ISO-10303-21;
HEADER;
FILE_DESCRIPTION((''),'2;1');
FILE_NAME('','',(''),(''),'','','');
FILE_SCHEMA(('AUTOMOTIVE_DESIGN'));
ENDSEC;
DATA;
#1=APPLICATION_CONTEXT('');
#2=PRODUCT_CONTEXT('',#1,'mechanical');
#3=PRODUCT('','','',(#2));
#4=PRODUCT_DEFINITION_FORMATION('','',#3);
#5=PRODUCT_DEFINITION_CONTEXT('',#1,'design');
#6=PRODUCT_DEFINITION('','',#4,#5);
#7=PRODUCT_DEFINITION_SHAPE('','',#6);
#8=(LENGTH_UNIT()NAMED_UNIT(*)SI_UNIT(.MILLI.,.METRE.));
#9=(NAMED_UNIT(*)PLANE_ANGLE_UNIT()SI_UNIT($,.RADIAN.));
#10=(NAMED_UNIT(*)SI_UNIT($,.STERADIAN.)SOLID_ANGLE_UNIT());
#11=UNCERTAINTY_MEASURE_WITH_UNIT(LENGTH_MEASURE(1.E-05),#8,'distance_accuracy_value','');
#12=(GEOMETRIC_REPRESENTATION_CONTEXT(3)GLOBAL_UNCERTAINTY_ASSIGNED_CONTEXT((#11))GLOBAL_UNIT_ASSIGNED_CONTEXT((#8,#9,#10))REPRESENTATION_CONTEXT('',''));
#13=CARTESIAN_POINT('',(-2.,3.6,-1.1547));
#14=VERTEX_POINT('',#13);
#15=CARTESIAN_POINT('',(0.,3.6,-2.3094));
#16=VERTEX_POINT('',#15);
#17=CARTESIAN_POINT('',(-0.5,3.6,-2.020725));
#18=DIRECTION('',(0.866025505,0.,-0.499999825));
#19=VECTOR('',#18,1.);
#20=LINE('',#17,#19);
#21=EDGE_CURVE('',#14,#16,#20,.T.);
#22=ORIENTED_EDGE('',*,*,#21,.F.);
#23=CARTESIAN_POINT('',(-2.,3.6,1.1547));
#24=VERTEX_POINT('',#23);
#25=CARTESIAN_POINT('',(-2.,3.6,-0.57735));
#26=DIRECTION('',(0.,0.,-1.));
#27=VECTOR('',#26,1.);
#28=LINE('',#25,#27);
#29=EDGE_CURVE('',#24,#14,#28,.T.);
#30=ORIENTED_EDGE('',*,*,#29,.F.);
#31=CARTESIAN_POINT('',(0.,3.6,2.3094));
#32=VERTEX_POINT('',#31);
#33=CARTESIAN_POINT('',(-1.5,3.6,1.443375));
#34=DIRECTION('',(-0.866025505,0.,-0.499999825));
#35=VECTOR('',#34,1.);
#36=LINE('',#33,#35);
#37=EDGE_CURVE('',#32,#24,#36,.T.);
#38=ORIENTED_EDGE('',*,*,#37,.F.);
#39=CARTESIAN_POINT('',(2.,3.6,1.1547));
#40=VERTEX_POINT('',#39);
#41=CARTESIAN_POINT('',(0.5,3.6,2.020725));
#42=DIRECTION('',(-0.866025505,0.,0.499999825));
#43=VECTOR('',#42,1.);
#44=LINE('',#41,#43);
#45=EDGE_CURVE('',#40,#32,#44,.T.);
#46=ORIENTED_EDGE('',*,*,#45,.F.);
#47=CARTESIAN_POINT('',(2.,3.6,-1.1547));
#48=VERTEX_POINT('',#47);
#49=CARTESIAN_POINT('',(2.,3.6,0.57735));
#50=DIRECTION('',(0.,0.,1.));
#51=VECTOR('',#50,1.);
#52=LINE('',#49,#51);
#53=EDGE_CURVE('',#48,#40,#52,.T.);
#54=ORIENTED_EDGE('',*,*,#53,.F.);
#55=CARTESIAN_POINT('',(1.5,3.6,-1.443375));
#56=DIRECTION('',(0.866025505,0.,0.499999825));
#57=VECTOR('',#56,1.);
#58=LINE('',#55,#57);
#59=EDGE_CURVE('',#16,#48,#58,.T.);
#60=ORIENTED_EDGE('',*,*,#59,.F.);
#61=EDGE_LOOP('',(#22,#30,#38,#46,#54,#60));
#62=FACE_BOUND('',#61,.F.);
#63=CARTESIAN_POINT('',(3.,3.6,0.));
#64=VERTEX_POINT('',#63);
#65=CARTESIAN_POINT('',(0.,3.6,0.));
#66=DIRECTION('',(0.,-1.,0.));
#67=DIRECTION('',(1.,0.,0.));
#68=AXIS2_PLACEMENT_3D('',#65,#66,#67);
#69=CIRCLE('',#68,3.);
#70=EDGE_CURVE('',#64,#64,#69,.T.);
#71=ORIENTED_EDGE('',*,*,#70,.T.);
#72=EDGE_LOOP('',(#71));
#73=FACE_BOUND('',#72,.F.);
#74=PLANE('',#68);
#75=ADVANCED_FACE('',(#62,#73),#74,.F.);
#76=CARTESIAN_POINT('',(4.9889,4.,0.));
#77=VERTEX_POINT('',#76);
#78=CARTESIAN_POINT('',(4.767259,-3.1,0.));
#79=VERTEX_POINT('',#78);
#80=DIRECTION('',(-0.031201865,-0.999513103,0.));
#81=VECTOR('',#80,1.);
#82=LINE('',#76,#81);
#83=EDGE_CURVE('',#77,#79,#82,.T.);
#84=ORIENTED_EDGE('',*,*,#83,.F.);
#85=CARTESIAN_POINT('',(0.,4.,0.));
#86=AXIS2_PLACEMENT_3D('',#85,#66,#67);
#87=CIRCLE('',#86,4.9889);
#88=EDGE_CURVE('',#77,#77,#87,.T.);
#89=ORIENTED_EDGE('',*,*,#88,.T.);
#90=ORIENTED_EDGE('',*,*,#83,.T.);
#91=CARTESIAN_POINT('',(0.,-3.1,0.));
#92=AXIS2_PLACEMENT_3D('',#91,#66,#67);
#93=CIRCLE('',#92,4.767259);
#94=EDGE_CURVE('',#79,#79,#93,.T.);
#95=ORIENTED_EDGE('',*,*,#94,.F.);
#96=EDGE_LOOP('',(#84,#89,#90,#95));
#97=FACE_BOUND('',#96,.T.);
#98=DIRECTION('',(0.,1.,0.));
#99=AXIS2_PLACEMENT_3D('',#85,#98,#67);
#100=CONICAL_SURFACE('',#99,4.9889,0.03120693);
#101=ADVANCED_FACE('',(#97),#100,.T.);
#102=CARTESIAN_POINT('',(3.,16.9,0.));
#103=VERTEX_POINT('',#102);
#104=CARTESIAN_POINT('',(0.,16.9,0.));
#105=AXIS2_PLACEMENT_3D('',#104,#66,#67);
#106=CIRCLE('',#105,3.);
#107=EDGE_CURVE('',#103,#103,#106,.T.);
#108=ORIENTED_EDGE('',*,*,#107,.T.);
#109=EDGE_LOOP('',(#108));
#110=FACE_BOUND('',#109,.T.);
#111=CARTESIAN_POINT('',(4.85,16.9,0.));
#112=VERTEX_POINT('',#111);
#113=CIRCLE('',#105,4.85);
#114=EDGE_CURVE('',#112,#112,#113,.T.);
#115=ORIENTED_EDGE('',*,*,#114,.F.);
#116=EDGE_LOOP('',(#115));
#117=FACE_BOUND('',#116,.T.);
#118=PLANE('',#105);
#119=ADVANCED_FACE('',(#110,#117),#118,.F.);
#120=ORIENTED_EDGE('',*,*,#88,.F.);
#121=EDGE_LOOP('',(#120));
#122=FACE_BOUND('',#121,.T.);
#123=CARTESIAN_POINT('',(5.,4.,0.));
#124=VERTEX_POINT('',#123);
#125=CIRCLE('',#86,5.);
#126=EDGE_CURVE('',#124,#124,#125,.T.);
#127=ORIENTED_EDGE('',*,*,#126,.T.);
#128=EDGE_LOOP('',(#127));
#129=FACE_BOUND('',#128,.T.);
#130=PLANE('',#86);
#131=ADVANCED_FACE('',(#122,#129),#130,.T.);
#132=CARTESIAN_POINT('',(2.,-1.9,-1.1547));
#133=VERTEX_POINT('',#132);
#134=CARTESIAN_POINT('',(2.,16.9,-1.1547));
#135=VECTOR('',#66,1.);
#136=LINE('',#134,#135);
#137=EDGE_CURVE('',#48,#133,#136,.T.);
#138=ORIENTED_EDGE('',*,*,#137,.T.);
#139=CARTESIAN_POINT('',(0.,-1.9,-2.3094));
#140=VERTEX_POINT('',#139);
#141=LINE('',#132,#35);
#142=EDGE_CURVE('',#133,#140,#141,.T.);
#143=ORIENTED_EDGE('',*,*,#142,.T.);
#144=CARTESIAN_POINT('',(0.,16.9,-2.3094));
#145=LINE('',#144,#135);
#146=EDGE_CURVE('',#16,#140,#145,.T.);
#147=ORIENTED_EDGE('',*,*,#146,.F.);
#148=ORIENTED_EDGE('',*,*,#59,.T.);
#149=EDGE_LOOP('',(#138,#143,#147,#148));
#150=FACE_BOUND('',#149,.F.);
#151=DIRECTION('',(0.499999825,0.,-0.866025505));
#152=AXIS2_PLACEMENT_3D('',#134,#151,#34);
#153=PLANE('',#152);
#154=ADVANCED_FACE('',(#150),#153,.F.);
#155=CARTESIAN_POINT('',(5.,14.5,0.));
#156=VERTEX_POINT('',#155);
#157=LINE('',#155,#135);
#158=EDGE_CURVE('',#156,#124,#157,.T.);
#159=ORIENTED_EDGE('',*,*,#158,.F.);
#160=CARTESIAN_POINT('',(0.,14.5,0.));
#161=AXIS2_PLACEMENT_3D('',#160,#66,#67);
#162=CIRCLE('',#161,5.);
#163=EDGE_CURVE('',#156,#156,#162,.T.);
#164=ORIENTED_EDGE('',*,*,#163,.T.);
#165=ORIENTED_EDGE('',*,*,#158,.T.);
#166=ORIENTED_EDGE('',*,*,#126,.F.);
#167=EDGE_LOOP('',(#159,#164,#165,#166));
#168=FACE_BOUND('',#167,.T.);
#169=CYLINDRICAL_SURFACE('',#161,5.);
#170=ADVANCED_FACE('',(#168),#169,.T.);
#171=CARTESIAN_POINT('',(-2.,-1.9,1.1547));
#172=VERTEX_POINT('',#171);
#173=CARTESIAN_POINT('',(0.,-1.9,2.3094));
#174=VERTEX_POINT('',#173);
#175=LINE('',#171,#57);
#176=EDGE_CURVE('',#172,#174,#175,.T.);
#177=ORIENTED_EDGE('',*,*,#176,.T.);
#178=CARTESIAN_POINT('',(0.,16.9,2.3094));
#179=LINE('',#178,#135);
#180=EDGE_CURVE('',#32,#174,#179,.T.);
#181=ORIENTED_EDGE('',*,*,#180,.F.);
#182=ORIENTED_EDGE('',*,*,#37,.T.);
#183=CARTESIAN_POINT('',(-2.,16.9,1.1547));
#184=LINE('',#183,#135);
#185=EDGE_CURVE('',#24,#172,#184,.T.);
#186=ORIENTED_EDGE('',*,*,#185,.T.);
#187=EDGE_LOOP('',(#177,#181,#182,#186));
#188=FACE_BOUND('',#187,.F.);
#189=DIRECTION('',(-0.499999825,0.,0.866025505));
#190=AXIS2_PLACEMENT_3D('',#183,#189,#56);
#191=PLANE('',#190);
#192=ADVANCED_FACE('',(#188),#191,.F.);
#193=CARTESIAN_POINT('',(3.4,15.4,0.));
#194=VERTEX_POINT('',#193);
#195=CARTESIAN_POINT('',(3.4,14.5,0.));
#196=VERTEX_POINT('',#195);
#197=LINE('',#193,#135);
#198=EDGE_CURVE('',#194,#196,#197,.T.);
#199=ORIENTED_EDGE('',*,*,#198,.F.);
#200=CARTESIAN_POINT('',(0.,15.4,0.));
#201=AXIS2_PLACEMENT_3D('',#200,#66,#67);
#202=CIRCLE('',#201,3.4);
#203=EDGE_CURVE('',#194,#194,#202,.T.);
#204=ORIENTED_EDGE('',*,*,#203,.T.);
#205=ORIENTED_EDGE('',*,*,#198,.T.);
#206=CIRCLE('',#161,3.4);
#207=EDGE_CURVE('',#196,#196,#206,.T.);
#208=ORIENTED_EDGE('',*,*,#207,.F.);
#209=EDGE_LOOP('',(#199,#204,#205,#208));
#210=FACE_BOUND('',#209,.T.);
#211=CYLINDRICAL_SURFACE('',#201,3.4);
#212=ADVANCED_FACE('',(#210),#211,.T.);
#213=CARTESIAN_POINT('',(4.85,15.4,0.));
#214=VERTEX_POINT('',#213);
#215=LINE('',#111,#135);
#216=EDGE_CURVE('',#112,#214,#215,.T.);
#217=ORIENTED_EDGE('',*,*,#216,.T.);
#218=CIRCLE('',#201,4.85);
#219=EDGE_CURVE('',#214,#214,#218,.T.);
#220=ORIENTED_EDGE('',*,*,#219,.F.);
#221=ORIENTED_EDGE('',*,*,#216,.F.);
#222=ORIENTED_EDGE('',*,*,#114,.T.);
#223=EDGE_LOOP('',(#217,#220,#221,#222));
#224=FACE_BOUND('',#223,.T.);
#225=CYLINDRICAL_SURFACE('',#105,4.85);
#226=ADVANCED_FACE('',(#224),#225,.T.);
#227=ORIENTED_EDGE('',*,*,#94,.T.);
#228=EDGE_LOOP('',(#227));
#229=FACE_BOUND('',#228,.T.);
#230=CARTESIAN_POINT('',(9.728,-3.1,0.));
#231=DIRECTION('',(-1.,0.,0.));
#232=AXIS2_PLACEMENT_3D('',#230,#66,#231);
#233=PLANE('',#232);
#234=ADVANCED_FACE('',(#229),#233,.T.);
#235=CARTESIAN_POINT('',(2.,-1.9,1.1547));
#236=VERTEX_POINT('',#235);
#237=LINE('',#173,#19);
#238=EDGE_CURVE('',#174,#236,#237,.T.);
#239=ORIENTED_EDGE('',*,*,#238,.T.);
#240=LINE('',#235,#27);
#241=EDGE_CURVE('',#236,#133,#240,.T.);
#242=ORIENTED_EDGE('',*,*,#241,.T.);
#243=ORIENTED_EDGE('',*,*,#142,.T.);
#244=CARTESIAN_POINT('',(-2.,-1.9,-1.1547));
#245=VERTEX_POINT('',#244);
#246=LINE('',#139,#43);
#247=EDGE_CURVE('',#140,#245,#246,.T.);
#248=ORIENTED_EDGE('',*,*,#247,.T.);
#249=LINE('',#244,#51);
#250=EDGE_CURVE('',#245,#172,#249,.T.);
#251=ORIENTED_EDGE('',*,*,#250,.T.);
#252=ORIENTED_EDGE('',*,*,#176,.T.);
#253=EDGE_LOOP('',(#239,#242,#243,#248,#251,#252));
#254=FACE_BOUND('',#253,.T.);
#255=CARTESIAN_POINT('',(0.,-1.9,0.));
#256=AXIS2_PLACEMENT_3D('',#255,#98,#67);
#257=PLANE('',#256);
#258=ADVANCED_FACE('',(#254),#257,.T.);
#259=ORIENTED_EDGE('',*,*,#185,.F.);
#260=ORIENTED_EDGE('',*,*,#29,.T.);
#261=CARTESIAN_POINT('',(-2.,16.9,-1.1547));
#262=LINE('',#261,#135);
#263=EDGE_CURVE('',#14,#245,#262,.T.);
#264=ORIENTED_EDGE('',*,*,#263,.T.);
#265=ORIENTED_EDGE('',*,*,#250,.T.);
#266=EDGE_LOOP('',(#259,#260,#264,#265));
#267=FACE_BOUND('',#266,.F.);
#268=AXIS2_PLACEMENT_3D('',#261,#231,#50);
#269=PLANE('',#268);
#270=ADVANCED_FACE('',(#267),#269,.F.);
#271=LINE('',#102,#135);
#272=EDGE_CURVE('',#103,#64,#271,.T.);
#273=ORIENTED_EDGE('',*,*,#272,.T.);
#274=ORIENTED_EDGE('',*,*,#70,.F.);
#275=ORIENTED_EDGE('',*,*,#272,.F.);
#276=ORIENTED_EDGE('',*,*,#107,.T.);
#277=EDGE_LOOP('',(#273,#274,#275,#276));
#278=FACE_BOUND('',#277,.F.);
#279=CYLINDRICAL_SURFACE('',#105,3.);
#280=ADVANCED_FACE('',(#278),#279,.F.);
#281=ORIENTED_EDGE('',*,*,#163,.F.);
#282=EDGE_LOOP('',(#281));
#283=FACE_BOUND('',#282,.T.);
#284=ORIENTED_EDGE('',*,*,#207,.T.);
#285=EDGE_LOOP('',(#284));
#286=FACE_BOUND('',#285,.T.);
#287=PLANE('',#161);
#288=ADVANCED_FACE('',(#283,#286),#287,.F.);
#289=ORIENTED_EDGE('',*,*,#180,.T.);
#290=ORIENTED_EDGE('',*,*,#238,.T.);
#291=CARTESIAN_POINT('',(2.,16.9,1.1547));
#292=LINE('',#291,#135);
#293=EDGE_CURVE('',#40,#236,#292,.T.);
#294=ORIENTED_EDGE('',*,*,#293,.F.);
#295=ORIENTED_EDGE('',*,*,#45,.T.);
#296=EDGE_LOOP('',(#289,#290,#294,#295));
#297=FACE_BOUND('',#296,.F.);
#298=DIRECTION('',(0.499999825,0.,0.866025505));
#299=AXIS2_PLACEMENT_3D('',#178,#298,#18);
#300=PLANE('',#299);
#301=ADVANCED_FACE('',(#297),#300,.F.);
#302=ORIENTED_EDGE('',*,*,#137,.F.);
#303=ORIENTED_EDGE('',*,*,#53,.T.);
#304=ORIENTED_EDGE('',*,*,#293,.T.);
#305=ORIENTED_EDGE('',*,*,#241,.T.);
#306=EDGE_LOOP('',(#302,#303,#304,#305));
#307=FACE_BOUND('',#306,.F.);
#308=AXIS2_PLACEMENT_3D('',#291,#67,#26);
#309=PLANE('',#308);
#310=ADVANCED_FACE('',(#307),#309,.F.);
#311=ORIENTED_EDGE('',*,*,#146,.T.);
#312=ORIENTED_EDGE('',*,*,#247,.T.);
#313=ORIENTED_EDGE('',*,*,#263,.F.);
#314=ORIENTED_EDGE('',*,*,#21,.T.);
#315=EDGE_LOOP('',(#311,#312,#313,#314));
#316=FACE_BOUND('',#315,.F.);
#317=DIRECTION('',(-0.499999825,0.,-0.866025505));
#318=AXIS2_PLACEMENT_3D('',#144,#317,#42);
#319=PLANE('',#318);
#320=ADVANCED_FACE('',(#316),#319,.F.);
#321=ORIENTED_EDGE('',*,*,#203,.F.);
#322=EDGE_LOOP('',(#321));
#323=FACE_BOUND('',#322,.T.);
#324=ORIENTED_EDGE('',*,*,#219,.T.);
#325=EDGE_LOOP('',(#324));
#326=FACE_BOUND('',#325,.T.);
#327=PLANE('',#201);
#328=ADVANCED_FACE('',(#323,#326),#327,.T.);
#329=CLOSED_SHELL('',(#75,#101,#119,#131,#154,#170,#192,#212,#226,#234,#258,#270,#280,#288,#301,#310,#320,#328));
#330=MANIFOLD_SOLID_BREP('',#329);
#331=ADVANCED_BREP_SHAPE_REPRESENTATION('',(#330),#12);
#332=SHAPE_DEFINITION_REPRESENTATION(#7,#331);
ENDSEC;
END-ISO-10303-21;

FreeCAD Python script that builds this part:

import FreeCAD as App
import Part
import Sketcher
from FreeCAD import Vector
Q = App.Units.Quantity

doc = App.newDocument("Part")
body = doc.addObject("PartDesign::Body", "Body")

sketch1 = body.newObject("Sketcher::SketchObject", "Sketch")
sketch1.AttachmentSupport = (doc.getObject("XY_Plane"), [""])
sketch1.MapMode = "FlatFace"
sketch1.addGeometry([
    Part.LineSegment(Vector(0, 16.9, 0), Vector(0, -3.97, 0)),
    Part.LineSegment(Vector(0, -3.97, 0), Vector(4.74, -3.97, 0)),
    Part.LineSegment(Vector(4.74, -3.97, 0), Vector(4.989, 4, 0)),
    Part.LineSegment(Vector(4.989, 4, 0), Vector(5, 4, 0)),
    Part.LineSegment(Vector(5, 4, 0), Vector(5, 14.5, 0)),
    Part.LineSegment(Vector(5, 14.5, 0), Vector(3.4, 14.5, 0)),
    Part.LineSegment(Vector(3.4, 14.5, 0), Vector(3.4, 15.4, 0)),
    Part.LineSegment(Vector(3.4, 15.4, 0), Vector(4.85, 15.4, 0)),
    Part.LineSegment(Vector(4.85, 15.4, 0), Vector(4.85, 16.9, 0)),
    Part.LineSegment(Vector(4.85, 16.9, 0), Vector(0, 16.9, 0)),
], False)
sketch1.addConstraint([
    Sketcher.Constraint("Coincident", 0, 2, 1, 1),
    Sketcher.Constraint("Coincident", 1, 2, 2, 1),
    Sketcher.Constraint("Coincident", 2, 2, 3, 1),
    Sketcher.Constraint("Coincident", 3, 2, 4, 1),
    Sketcher.Constraint("Coincident", 4, 2, 5, 1),
    Sketcher.Constraint("Coincident", 5, 2, 6, 1),
    Sketcher.Constraint("Coincident", 6, 2, 7, 1),
    Sketcher.Constraint("Coincident", 7, 2, 8, 1),
    Sketcher.Constraint("Coincident", 8, 2, 9, 1),
    Sketcher.Constraint("Coincident", 9, 2, 0, 1),
    Sketcher.Constraint("Vertical", 0),
    Sketcher.Constraint("Horizontal", 1),
    Sketcher.Constraint("Horizontal", 3),
    Sketcher.Constraint("Vertical", 4),
    Sketcher.Constraint("Horizontal", 5),
    Sketcher.Constraint("Vertical", 6),
    Sketcher.Constraint("Horizontal", 7),
    Sketcher.Constraint("Vertical", 8),
    Sketcher.Constraint("Horizontal", 9),
    Sketcher.Constraint("PointOnObject", 0, 2, -2),
    Sketcher.Constraint("DistanceX", 5, 2, 5, 1, 1.6),
    Sketcher.Constraint("DistanceY", 4, 1, 4, 2, 10.5),
    Sketcher.Constraint("DistanceY", 6, 1, 6, 2, 0.9),
    Sketcher.Constraint("DistanceY", 8, 1, 8, 2, 1.5),
    Sketcher.Constraint("DistanceY", -1, 1, 2, 2, 4.0),
    Sketcher.Constraint("DistanceX", -1, 1, 3, 2, 5.0),
    Sketcher.Constraint("DistanceX", 1, 1, 1, 2, 4.74),
    Sketcher.Constraint("DistanceX", 7, 1, 7, 2, 1.45),
    Sketcher.Constraint("DistanceY", 0, 2, 0, 1, 20.87),
    Sketcher.Constraint("DistanceX", 3, 1, 3, 2, 0.011),
])
revolution = body.newObject("PartDesign::Revolution", "Revolution")
revolution.Profile = sketch1
revolution.ReferenceAxis = (sketch1, ["V_Axis"])
revolution.Angle = 360

sketch2 = body.newObject("Sketcher::SketchObject", "Sketch001")
sketch2.AttachmentSupport = (doc.getObject("XY_Plane"), [""])
sketch2.MapMode = "FlatFace"
sketch2.addGeometry([
    Part.LineSegment(Vector(9.7, -3.1, 0), Vector(-9.7, -3.1, 0)),
    Part.LineSegment(Vector(-9.7, -3.1, 0), Vector(-9.7, -4, 0)),
    Part.LineSegment(Vector(-9.7, -4, 0), Vector(9.7, -4, 0)),
    Part.LineSegment(Vector(9.7, -4, 0), Vector(9.7, -3.1, 0)),
], False)
sketch2.addConstraint([
    Sketcher.Constraint("Coincident", 0, 2, 1, 1),
    Sketcher.Constraint("Coincident", 1, 2, 2, 1),
    Sketcher.Constraint("Coincident", 2, 2, 3, 1),
    Sketcher.Constraint("Coincident", 3, 2, 0, 1),
    Sketcher.Constraint("Horizontal", 0),
    Sketcher.Constraint("Vertical", 1),
    Sketcher.Constraint("Horizontal", 2),
    Sketcher.Constraint("Vertical", 3),
    Sketcher.Constraint("DistanceY", 1, 2, 1, 1, 0.87),
    Sketcher.Constraint("DistanceY", 0, 2, -1, 1, 3.1),
    Sketcher.Constraint("DistanceX", 0, 2, 0, 1, 19.456),
    Sketcher.Constraint("DistanceX", 0, 2, -1, 1, 9.728),
])
pocket1 = body.newObject("PartDesign::Pocket", "Pocket")
pocket1.Profile = sketch2
pocket1.Length = 19.456
pocket1.Midplane = True

sketch3 = body.newObject("Sketcher::SketchObject", "Sketch002")
sketch3.AttachmentSupport = (doc.getObject("XY_Plane"), [""])
sketch3.MapMode = "FlatFace"
sketch3.addGeometry([
    Part.LineSegment(Vector(0, 16.9, 0), Vector(0, 3.6, 0)),
    Part.LineSegment(Vector(0, 3.6, 0), Vector(3, 3.6, 0)),
    Part.LineSegment(Vector(3, 3.6, 0), Vector(3, 16.9, 0)),
    Part.LineSegment(Vector(3, 16.9, 0), Vector(0, 16.9, 0)),
], False)
sketch3.addConstraint([
    Sketcher.Constraint("Coincident", 0, 2, 1, 1),
    Sketcher.Constraint("Coincident", 1, 2, 2, 1),
    Sketcher.Constraint("Coincident", 2, 2, 3, 1),
    Sketcher.Constraint("Coincident", 3, 2, 0, 1),
    Sketcher.Constraint("Vertical", 0),
    Sketcher.Constraint("Horizontal", 1),
    Sketcher.Constraint("Vertical", 2),
    Sketcher.Constraint("Horizontal", 3),
    Sketcher.Constraint("PointOnObject", 0, 2, -2),
    Sketcher.Constraint("DistanceX", 1, 1, 1, 2, 3.0),
    Sketcher.Constraint("DistanceY", 0, 2, 0, 1, 13.3),
    Sketcher.Constraint("DistanceY", -1, 1, 0, 2, 3.6),
])
groove = body.newObject("PartDesign::Groove", "Groove")
groove.Profile = sketch3
groove.ReferenceAxis = (sketch3, ["V_Axis"])
groove.Angle = 360

sketch4 = body.newObject("Sketcher::SketchObject", "Sketch003")
sketch4.AttachmentSupport = (doc.getObject("XZ_Plane"), [""])
sketch4.MapMode = "FlatFace"
sketch4.AttachmentOffset = App.Placement(Vector(0, 0, -16.9), App.Rotation())
sketch4.addGeometry([
    Part.LineSegment(Vector(-2, -1.2, 0), Vector(-2, 1.2, 0)),
    Part.LineSegment(Vector(-2, 1.2, 0), Vector(0, 2.3, 0)),
    Part.LineSegment(Vector(0, 2.3, 0), Vector(2, 1.2, 0)),
    Part.LineSegment(Vector(2, 1.2, 0), Vector(2, -1.2, 0)),
    Part.LineSegment(Vector(2, -1.2, 0), Vector(0, -2.3, 0)),
    Part.LineSegment(Vector(0, -2.3, 0), Vector(-2, -1.2, 0)),
], False)
sketch4.addConstraint([
    Sketcher.Constraint("Coincident", 0, 2, 1, 1),
    Sketcher.Constraint("Coincident", 1, 2, 2, 1),
    Sketcher.Constraint("Coincident", 2, 2, 3, 1),
    Sketcher.Constraint("Coincident", 3, 2, 4, 1),
    Sketcher.Constraint("Coincident", 4, 2, 5, 1),
    Sketcher.Constraint("Coincident", 5, 2, 0, 1),
    Sketcher.Constraint("Vertical", 0),
    Sketcher.Constraint("Vertical", 3),
    Sketcher.Constraint("Symmetric", 0, 2, 3, 2, -1, 1),
    Sketcher.Constraint("Symmetric", 1, 2, 4, 2, -1, 1),
    Sketcher.Constraint("PointOnObject", 1, 2, -2),
    Sketcher.Constraint("Parallel", 2, 5),
    Sketcher.Constraint("Horizontal", 0, 2, 2, 2),
    Sketcher.Constraint("Angle", 1, Q("30 deg")),
    Sketcher.Constraint("DistanceX", 0, 2, -1, 1, 2.0),
    Sketcher.Constraint("DistanceY", 0, 1, 0, 2, 2.3094),
])
pocket2 = body.newObject("PartDesign::Pocket", "Pocket001")
pocket2.Profile = sketch4
pocket2.Length = 18.8
pocket2.Reversed = True

doc.recompute()
